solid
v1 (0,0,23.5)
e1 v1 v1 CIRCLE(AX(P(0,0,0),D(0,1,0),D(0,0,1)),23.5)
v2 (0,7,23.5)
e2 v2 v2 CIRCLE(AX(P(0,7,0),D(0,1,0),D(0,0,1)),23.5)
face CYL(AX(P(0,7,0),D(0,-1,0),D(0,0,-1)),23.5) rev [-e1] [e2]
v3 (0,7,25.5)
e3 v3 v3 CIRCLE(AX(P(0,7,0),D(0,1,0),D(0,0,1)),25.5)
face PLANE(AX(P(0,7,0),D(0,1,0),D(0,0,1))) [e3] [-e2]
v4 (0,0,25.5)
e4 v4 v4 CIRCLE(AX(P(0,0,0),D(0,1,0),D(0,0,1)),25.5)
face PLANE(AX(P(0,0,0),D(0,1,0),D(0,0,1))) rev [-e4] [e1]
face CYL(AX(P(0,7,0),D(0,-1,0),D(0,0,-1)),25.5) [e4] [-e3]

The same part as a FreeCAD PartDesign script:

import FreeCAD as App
import Part
import Sketcher

V = App.Vector

doc = App.newDocument("Part")
body = doc.addObject("PartDesign::Body", "Body")

# Sketch on XZ plane
sketch1 = body.newObject("Sketcher::SketchObject", "Sketch")
sketch1.AttachmentSupport = (doc.getObject("XZ_Plane"), [""])
sketch1.MapMode = "FlatFace"
sketch1.addGeometry(Part.Circle(V(0, 0, 0), V(0, 0, 1), 26), False)
sketch1.addGeometry(Part.Circle(V(0, 0, 0), V(0, 0, 1), 24), False)
sketch1.addConstraint(Sketcher.Constraint("Coincident", 0, 3, -1, 1))
sketch1.addConstraint(Sketcher.Constraint("Coincident", 1, 3, -1, 1))
sketch1.addConstraint(Sketcher.Constraint("Diameter", 0, 51.0))
sketch1.addConstraint(Sketcher.Constraint("Diameter", 1, 47.0))
pad1 = body.newObject("PartDesign::Pad", "Pad")
pad1.Profile = sketch1
pad1.Length = 7
pad1.Reversed = True

doc.recompute()
